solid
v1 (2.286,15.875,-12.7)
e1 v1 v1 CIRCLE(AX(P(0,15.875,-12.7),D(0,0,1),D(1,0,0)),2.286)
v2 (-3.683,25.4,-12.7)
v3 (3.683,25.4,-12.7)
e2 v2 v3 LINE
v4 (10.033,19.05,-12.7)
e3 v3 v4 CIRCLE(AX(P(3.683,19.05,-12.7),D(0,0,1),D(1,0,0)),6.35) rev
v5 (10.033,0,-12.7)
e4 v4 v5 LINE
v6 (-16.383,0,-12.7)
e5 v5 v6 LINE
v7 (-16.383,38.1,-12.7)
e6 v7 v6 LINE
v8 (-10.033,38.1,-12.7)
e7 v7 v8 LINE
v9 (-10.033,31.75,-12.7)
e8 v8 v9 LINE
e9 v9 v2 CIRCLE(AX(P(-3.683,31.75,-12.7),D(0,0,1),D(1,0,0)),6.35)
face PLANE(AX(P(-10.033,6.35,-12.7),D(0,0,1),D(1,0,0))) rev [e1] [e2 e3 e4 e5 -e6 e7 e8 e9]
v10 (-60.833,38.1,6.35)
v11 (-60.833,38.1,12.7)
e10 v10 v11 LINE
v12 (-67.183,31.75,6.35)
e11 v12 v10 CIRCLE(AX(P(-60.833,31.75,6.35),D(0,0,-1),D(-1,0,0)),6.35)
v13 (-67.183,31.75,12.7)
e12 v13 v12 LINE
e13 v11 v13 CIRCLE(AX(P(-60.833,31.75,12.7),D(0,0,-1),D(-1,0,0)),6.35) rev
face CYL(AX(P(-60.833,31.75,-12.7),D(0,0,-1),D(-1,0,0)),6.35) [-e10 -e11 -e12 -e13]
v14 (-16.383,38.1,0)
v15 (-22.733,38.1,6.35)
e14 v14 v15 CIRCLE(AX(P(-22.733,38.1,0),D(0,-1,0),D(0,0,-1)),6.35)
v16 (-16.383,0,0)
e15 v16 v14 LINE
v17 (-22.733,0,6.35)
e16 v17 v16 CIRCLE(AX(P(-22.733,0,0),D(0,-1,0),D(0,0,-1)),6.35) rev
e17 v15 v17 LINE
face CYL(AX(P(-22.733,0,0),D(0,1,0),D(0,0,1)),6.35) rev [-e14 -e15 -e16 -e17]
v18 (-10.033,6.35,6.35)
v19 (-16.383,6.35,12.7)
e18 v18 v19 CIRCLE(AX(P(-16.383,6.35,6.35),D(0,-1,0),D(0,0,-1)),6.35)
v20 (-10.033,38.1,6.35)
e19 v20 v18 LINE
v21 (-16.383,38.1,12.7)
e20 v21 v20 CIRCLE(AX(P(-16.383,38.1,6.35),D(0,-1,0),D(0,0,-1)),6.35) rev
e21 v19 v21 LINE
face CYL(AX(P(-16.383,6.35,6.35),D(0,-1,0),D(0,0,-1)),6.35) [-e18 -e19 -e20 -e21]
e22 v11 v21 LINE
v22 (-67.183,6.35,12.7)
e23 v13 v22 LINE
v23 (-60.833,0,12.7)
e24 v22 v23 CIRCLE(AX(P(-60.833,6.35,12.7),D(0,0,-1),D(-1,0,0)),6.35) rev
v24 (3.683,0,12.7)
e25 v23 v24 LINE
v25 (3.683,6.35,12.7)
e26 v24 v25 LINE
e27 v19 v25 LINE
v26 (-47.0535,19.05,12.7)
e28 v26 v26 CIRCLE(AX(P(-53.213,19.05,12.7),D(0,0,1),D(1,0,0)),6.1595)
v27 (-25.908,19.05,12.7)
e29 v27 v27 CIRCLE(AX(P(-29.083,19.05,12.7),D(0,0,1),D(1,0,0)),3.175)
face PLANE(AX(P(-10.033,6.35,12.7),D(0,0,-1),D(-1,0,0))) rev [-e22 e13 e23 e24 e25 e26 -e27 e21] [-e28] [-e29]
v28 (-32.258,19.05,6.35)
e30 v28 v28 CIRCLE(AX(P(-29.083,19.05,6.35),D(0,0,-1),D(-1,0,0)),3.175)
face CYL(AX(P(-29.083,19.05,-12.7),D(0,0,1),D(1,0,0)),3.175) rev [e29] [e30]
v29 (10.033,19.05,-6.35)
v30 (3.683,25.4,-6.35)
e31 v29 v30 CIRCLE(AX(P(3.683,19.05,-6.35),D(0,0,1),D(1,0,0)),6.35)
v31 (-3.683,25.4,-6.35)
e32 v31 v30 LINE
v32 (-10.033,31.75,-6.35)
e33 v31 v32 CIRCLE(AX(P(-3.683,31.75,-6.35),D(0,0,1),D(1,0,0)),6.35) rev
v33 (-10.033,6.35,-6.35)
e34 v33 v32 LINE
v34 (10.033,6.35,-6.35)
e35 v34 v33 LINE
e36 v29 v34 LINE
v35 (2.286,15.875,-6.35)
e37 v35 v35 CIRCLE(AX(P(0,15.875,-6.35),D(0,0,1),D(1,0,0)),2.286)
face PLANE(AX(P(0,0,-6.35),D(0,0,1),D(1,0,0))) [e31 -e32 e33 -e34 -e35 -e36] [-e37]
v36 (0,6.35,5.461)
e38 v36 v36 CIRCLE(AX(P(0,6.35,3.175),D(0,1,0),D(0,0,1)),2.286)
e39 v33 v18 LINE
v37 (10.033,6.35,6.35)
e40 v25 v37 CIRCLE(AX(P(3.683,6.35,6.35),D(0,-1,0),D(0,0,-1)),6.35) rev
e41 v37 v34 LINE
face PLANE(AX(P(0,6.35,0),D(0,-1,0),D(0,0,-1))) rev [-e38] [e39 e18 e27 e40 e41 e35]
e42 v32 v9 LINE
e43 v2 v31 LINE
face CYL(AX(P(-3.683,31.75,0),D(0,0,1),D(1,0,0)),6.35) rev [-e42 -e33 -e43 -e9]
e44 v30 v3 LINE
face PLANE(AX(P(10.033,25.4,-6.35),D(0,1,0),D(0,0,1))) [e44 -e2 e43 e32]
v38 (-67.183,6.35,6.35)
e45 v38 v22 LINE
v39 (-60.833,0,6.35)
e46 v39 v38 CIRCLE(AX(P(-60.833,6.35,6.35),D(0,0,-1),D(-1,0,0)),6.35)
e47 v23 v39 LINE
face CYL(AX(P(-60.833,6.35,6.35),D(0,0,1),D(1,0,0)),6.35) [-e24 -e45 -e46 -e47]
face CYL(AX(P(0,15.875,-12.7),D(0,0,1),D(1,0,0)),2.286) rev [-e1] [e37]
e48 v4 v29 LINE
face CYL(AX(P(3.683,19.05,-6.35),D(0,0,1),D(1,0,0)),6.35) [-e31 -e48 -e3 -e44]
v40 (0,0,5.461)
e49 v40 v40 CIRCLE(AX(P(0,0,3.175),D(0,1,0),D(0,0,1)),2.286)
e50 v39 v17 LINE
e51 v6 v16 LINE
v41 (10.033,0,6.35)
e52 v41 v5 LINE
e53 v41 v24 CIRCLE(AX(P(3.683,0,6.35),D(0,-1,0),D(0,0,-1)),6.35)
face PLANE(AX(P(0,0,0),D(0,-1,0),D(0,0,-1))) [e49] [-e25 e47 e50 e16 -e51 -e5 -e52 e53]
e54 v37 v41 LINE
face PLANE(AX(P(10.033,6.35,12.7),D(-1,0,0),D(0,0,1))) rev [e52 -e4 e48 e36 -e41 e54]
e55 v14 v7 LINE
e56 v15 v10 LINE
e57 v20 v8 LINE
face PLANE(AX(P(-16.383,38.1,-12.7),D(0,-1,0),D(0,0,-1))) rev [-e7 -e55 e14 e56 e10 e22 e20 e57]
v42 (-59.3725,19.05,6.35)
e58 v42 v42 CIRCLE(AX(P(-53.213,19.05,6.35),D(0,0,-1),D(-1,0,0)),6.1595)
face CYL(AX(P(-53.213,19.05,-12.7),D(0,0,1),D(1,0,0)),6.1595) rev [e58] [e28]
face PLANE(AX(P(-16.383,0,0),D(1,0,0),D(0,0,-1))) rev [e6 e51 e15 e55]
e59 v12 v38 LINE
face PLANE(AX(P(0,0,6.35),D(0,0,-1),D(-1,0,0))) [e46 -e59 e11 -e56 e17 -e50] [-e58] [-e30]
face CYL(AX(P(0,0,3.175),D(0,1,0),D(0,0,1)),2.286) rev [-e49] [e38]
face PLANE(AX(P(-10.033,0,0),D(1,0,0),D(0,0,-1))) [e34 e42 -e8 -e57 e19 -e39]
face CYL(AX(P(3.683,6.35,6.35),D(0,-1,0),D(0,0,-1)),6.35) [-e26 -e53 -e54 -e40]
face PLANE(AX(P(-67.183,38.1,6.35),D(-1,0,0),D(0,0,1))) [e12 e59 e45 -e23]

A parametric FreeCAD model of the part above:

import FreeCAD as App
import Part
import Sketcher

V = App.Vector
Q = App.Units.Quantity


def edges_at(feature, points):
    """Names of the edges that pass closest to the given points."""
    edges = feature.Shape.Edges
    near = lambda p: min(range(len(edges)), key=lambda i: edges[i].distToShape(Part.Vertex(*p))[0])
    return sorted({f"Edge{near(p) + 1}" for p in points})

doc = App.newDocument("Part")
body = doc.addObject("PartDesign::Body", "Body")

sketch1 = body.newObject("Sketcher::SketchObject", "Sketch")
sketch1.AttachmentSupport = (doc.getObject("XZ_Plane"), [""])
sketch1.MapMode = "FlatFace"
sketch1.addGeometry([
    Part.LineSegment(V(-10, -13, 0), V(-10, 13, 0)),
    Part.LineSegment(V(-10, 13, 0), V(10, 13, 0)),
    Part.LineSegment(V(10, 13, 0), V(10, -13, 0)),
    Part.LineSegment(V(10, -13, 0), V(-10, -13, 0)),
], False)
sketch1.addConstraint([
    Sketcher.Constraint("Coincident", 0, 2, 1, 1),
    Sketcher.Constraint("Coincident", 1, 2, 2, 1),
    Sketcher.Constraint("Coincident", 2, 2, 3, 1),
    Sketcher.Constraint("Coincident", 3, 2, 0, 1),
    Sketcher.Constraint("Vertical", 0),
    Sketcher.Constraint("Horizontal", 1),
    Sketcher.Constraint("Vertical", 2),
    Sketcher.Constraint("Horizontal", 3),
    Sketcher.Constraint("Symmetric", 0, 2, 2, 2, -1, 1),
    Sketcher.Constraint("DistanceY", 0, 1, 0, 2, Q("1 in")),
    Sketcher.Constraint("DistanceX", 1, 1, 1, 2, Q("0.79 in")),
])
pad1 = body.newObject("PartDesign::Pad", "Pad")
pad1.Profile = sketch1
pad1.Length = Q("0.25 in")
pad1.Reversed = True

sketch2 = body.newObject("Sketcher::SketchObject", "Sketch001")
sketch2.AttachmentSupport = (doc.getObject("XY_Plane"), [""])
sketch2.MapMode = "FlatFace"
sketch2.AttachmentOffset = App.Placement(V(0, 0, -0.5 * 25.4), App.Rotation())
sketch2.addGeometry([
    Part.LineSegment(V(10, 25, 0), V(10, 0, 0)),
    Part.LineSegment(V(10, 0, 0), V(-10, 0, 0)),
    Part.LineSegment(V(-10, 0, 0), V(-10, 25, 0)),
    Part.LineSegment(V(-10, 25, 0), V(10, 25, 0)),
], False)
sketch2.addConstraint([
    Sketcher.Constraint("Coincident", 0, 2, 1, 1),
    Sketcher.Constraint("Coincident", 1, 2, 2, 1),
    Sketcher.Constraint("Coincident", 2, 2, 3, 1),
    Sketcher.Constraint("Coincident", 3, 2, 0, 1),
    Sketcher.Constraint("Vertical", 0),
    Sketcher.Constraint("Horizontal", 1),
    Sketcher.Constraint("Vertical", 2),
    Sketcher.Constraint("Horizontal", 3),
    Sketcher.Constraint("Symmetric", 0, 2, 1, 2, -1, 1),
    Sketcher.Constraint("DistanceY", 0, 2, 0, 1, Q("1 in")),
    Sketcher.Constraint("DistanceX", 1, 2, 1, 1, Q("0.79 in")),
])
pad2 = body.newObject("PartDesign::Pad", "Pad001")
pad2.Profile = sketch2
pad2.Length = Q("0.25 in")

sketch3 = body.newObject("Sketcher::SketchObject", "Sketch002")
sketch3.AttachmentSupport = (doc.getObject("YZ_Plane"), [""])
sketch3.MapMode = "FlatFace"
sketch3.AttachmentOffset = App.Placement(V(0, 0, -0.395 * 25.4), App.Rotation())
sketch3.addGeometry([
    Part.LineSegment(V(38, -13, 0), V(0, -13, 0)),
    Part.LineSegment(V(0, -13, 0), V(0, 13, 0)),
    Part.LineSegment(V(0, 13, 0), V(38, 13, 0)),
    Part.LineSegment(V(38, 13, 0), V(38, -13, 0)),
], False)
sketch3.addConstraint([
    Sketcher.Constraint("Coincident", 0, 2, 1, 1),
    Sketcher.Constraint("Coincident", 1, 2, 2, 1),
    Sketcher.Constraint("Coincident", 2, 2, 3, 1),
    Sketcher.Constraint("Coincident", 3, 2, 0, 1),
    Sketcher.Constraint("Horizontal", 0),
    Sketcher.Constraint("Vertical", 1),
    Sketcher.Constraint("Horizontal", 2),
    Sketcher.Constraint("Vertical", 3),
    Sketcher.Constraint("Symmetric", 0, 2, 1, 2, -1, 1),
    Sketcher.Constraint("DistanceY", 1, 1, 1, 2, Q("1 in")),
    Sketcher.Constraint("DistanceX", 0, 2, 0, 1, Q("1.5 in")),
])
pad3 = body.newObject("PartDesign::Pad", "Pad002")
pad3.Profile = sketch3
pad3.Length = Q("0.25 in")
pad3.Reversed = True

sketch4 = body.newObject("Sketcher::SketchObject", "Sketch003")
sketch4.AttachmentSupport = (doc.getObject("XY_Plane"), [""])
sketch4.MapMode = "FlatFace"
sketch4.AttachmentOffset = App.Placement(V(0, 0, 0.5 * 25.4), App.Rotation())
sketch4.addGeometry([
    Part.LineSegment(V(-67, 38, 0), V(-67, 0, 0)),
    Part.LineSegment(V(-67, 0, 0), V(-16, 0, 0)),
    Part.LineSegment(V(-16, 0, 0), V(-16, 38, 0)),
    Part.LineSegment(V(-16, 38, 0), V(-67, 38, 0)),
], False)
sketch4.addConstraint([
    Sketcher.Constraint("Coincident", 0, 2, 1, 1),
    Sketcher.Constraint("Coincident", 1, 2, 2, 1),
    Sketcher.Constraint("Coincident", 2, 2, 3, 1),
    Sketcher.Constraint("Coincident", 3, 2, 0, 1),
    Sketcher.Constraint("Vertical", 0),
    Sketcher.Constraint("Horizontal", 1),
    Sketcher.Constraint("Vertical", 2),
    Sketcher.Constraint("Horizontal", 3),
    Sketcher.Constraint("PointOnObject", 0, 2, -1),
    Sketcher.Constraint("DistanceX", 1, 1, 1, 2, Q("2 in")),
    Sketcher.Constraint("DistanceY", 0, 2, 0, 1, Q("1.5 in")),
    Sketcher.Constraint("DistanceX", 0, 2, -1, 1, Q("2.645 in")),
])
pad4 = body.newObject("PartDesign::Pad", "Pad003")
pad4.Profile = sketch4
pad4.Length = Q("0.25 in")
pad4.Reversed = True

sketch5 = body.newObject("Sketcher::SketchObject", "Sketch004")
sketch5.AttachmentSupport = (doc.getObject("XY_Plane"), [""])
sketch5.MapMode = "FlatFace"
sketch5.AttachmentOffset = App.Placement(V(0, 0, -0.25 * 25.4), App.Rotation())
sketch5.addGeometry(Part.Circle(V(0, 15.9, 0), V(0, 0, 1), 2.3), False)
sketch5.addConstraint([
    Sketcher.Constraint("PointOnObject", 0, 3, -2),
    Sketcher.Constraint("Diameter", 0, Q("0.18 in")),
    Sketcher.Constraint("DistanceY", -1, 1, 0, 3, Q("0.625 in")),
])
pocket1 = body.newObject("PartDesign::Pocket", "Pocket")
pocket1.Profile = sketch5
pocket1.Type = "ThroughAll"

sketch6 = body.newObject("Sketcher::SketchObject", "Sketch005")
sketch6.AttachmentSupport = (doc.getObject("XZ_Plane"), [""])
sketch6.MapMode = "FlatFace"
sketch6.AttachmentOffset = App.Placement(V(0, 0, -0.25 * 25.4), App.Rotation())
sketch6.addGeometry(Part.Circle(V(0, 3.2, 0), V(0, 0, 1), 2.3), False)
sketch6.addConstraint([
    Sketcher.Constraint("PointOnObject", 0, 3, -2),
    Sketcher.Constraint("Diameter", 0, Q("0.18 in")),
    Sketcher.Constraint("DistanceY", -1, 1, 0, 3, Q("0.125 in")),
])
pocket2 = body.newObject("PartDesign::Pocket", "Pocket001")
pocket2.Profile = sketch6
pocket2.Type = "ThroughAll"
pocket2.Reversed = True

sketch7 = body.newObject("Sketcher::SketchObject", "Sketch006")
sketch7.AttachmentSupport = (doc.getObject("XY_Plane"), [""])
sketch7.MapMode = "FlatFace"
sketch7.AttachmentOffset = App.Placement(V(0, 0, 0.5 * 25.4), App.Rotation())
sketch7.addGeometry([
    Part.Circle(V(-53.2, 19.1, 0), V(0, 0, 1), 6.2),
    Part.Circle(V(-29.1, 19.1, 0), V(0, 0, 1), 3.2),
], False)
sketch7.addConstraint([
    Sketcher.Constraint("Horizontal", 0, 3, 1, 3),
    Sketcher.Constraint("Diameter", 1, Q("0.25 in")),
    Sketcher.Constraint("Diameter", 0, Q("0.485 in")),
    Sketcher.Constraint("DistanceY", -1, 1, 0, 3, Q("0.75 in")),
    Sketcher.Constraint("DistanceX", 0, 3, 1, 3, Q("0.95 in")),
    Sketcher.Constraint("DistanceX", 0, 3, -1, 1, Q("2.095 in")),
])
pocket3 = body.newObject("PartDesign::Pocket", "Pocket002")
pocket3.Profile = sketch7
pocket3.Type = "ThroughAll"
doc.recompute()

fillet = body.newObject("PartDesign::Fillet", "Fillet")
fillet.Base = (pocket3, edges_at(pocket3, [
    (-10.033, 25.4, -9.525),
    (10.033, 25.4, -9.525),
    (-10.033, 22.225, 12.7),
    (-16.383, 19.05, 6.35),
    (-67.183, 0, 9.525),
    (-67.183, 38.1, 9.525),
    (10.033, 3.175, 12.7),
]))
fillet.Radius = Q("0.25 in")

doc.recompute()
